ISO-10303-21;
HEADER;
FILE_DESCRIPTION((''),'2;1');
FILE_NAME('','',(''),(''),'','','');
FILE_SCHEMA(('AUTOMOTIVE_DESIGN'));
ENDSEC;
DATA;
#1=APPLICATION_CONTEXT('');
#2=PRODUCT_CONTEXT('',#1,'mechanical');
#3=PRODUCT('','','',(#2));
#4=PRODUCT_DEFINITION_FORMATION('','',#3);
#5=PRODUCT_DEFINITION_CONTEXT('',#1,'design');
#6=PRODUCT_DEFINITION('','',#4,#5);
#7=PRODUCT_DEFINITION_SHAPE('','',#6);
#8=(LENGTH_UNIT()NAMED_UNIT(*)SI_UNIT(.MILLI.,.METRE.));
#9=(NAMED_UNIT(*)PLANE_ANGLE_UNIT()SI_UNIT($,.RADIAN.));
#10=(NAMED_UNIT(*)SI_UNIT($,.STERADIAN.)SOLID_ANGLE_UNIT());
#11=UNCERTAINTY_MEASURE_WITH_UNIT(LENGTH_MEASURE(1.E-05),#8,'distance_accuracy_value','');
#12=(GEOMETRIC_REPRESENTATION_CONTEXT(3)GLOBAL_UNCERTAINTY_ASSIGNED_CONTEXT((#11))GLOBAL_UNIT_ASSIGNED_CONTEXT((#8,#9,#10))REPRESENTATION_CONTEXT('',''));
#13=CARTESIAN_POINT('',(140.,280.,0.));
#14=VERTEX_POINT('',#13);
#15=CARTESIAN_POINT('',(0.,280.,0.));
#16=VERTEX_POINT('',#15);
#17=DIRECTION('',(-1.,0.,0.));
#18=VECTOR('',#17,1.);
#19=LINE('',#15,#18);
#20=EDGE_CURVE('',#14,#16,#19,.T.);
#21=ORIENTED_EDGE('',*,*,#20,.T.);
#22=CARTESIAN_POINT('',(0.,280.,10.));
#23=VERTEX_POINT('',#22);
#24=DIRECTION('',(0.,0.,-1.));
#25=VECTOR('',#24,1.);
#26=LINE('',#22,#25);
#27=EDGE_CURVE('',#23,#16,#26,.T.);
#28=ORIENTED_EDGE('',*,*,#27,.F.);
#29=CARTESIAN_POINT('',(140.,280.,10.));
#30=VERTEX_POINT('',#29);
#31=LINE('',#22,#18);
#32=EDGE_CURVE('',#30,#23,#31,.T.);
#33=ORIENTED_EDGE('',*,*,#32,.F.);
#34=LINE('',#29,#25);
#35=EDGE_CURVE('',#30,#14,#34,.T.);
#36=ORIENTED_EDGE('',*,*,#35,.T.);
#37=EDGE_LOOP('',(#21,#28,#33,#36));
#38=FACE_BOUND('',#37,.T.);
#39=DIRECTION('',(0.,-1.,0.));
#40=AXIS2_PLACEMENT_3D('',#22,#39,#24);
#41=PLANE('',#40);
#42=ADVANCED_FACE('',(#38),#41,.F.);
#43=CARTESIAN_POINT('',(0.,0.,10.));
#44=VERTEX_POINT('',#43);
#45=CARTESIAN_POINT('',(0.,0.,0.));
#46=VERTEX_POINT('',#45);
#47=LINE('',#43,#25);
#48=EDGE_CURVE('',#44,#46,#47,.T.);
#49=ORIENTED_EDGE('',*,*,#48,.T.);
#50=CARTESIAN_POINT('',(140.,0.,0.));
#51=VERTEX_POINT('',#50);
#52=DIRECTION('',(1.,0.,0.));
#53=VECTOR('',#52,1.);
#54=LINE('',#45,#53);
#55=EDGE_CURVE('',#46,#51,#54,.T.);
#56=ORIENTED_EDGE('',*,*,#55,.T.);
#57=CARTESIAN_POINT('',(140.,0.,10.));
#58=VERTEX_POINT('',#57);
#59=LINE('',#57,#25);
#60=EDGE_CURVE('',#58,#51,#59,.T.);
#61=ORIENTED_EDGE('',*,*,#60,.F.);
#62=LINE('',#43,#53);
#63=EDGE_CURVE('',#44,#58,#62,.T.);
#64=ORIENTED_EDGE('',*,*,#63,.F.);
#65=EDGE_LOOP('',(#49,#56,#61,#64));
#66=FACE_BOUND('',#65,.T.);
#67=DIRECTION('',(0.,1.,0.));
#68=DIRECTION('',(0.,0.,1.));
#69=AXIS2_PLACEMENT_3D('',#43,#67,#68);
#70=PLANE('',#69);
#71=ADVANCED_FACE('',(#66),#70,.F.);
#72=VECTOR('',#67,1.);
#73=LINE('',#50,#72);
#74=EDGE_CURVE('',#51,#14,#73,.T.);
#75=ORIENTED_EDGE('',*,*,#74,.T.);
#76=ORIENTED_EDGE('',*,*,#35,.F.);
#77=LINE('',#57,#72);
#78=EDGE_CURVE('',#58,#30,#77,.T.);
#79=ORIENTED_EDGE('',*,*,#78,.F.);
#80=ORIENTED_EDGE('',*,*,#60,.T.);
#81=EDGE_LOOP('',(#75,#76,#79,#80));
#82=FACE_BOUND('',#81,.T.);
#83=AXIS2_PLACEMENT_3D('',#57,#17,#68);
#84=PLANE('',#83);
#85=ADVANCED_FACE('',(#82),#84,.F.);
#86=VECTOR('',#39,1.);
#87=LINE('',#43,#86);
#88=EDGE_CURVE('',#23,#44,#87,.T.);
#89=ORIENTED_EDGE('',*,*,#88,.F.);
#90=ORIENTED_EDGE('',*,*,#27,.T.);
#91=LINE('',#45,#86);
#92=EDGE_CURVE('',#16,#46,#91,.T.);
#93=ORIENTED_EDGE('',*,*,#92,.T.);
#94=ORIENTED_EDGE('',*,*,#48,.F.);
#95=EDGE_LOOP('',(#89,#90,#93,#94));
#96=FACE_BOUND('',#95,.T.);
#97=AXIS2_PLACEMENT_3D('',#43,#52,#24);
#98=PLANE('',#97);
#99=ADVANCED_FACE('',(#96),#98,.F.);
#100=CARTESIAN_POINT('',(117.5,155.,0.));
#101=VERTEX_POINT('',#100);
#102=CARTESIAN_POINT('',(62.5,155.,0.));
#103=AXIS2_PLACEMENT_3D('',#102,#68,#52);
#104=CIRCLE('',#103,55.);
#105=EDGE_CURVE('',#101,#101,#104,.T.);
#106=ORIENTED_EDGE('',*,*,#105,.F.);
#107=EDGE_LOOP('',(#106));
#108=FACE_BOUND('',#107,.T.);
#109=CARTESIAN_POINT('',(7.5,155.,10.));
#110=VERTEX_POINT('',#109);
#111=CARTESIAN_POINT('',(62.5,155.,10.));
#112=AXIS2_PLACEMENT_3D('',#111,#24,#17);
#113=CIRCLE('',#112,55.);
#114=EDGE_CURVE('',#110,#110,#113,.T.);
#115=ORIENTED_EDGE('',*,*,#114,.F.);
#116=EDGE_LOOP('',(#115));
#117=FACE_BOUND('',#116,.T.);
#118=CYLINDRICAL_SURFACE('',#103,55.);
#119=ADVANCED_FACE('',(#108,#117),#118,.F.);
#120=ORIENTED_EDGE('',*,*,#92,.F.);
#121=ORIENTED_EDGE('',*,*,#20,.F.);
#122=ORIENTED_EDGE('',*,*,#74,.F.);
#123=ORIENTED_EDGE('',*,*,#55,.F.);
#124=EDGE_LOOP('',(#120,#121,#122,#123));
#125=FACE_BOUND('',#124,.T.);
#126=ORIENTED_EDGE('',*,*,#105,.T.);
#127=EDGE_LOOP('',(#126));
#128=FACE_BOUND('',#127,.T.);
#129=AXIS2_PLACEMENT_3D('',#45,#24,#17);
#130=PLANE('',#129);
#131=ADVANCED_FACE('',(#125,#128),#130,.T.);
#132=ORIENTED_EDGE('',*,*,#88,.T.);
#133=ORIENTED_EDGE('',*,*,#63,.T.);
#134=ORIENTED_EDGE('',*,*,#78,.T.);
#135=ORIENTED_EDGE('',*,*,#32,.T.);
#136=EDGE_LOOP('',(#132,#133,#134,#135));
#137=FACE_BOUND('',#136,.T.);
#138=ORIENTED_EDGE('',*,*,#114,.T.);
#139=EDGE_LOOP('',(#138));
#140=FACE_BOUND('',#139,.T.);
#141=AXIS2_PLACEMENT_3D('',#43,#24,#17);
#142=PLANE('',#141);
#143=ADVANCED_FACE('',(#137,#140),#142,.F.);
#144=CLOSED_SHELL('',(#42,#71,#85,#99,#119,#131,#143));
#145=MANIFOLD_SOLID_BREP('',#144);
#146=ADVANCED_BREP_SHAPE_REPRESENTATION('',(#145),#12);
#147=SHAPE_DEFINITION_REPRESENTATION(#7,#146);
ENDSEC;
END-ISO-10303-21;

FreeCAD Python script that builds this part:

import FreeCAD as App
import Part
import Sketcher
Q = App.Units.Quantity

doc = App.newDocument("Part")
body = doc.addObject("PartDesign::Body", "Body")

# Sketch on XY plane
sketch1 = body.newObject("Sketcher::SketchObject", "Sketch")
sketch1.AttachmentSupport = (doc.getObject("XY_Plane"), [""])
sketch1.MapMode = "FlatFace"
sketch1.addGeometry(Part.LineSegment(App.Vector(0, 280, 0), App.Vector(0, 0, 0)), False)
sketch1.addGeometry(Part.LineSegment(App.Vector(0, 0, 0), App.Vector(140, 0, 0)), False)
sketch1.addGeometry(Part.LineSegment(App.Vector(140, 0, 0), App.Vector(140, 280, 0)), False)
sketch1.addGeometry(Part.LineSegment(App.Vector(140, 280, 0), App.Vector(0, 280, 0)), False)
sketch1.addConstraint(Sketcher.Constraint("Coincident", 0, 2, 1, 1))
sketch1.addConstraint(Sketcher.Constraint("Coincident", 1, 2, 2, 1))
sketch1.addConstraint(Sketcher.Constraint("Coincident", 2, 2, 3, 1))
sketch1.addConstraint(Sketcher.Constraint("Coincident", 3, 2, 0, 1))
sketch1.addConstraint(Sketcher.Constraint("Vertical", 0))
sketch1.addConstraint(Sketcher.Constraint("Horizontal", 1))
sketch1.addConstraint(Sketcher.Constraint("Vertical", 2))
sketch1.addConstraint(Sketcher.Constraint("Horizontal", 3))
sketch1.addConstraint(Sketcher.Constraint("Coincident", 0, 2, -1, 1))
sketch1.addConstraint(Sketcher.Constraint("DistanceX", 1, 1, 1, 2, Q("140 mm")))
sketch1.addConstraint(Sketcher.Constraint("DistanceY", 0, 2, 0, 1, Q("280 mm")))
pad1 = body.newObject("PartDesign::Pad", "Pad")
pad1.Profile = sketch1
pad1.Length = 10

# Sketch on XY plane
sketch2 = body.newObject("Sketcher::SketchObject", "Sketch001")
sketch2.AttachmentSupport = (doc.getObject("XY_Plane"), [""])
sketch2.MapMode = "FlatFace"
sketch2.AttachmentOffset = App.Placement(App.Vector(0, 0, 10), App.Rotation())
sketch2.addGeometry(Part.Circle(App.Vector(62, 155, 0), App.Vector(0, 0, 1), 55), False)
sketch2.addConstraint(Sketcher.Constraint("Diameter", 0, Q("110 mm")))
sketch2.addConstraint(Sketcher.Constraint("DistanceY", -1, 1, 0, 3, Q("155 mm")))
sketch2.addConstraint(Sketcher.Constraint("DistanceX", -1, 1, 0, 3, Q("62.5 mm")))
pocket1 = body.newObject("PartDesign::Pocket", "Pocket")
pocket1.Profile = sketch2
pocket1.Type = "ThroughAll"
pocket1.Midplane = True

doc.recompute()
